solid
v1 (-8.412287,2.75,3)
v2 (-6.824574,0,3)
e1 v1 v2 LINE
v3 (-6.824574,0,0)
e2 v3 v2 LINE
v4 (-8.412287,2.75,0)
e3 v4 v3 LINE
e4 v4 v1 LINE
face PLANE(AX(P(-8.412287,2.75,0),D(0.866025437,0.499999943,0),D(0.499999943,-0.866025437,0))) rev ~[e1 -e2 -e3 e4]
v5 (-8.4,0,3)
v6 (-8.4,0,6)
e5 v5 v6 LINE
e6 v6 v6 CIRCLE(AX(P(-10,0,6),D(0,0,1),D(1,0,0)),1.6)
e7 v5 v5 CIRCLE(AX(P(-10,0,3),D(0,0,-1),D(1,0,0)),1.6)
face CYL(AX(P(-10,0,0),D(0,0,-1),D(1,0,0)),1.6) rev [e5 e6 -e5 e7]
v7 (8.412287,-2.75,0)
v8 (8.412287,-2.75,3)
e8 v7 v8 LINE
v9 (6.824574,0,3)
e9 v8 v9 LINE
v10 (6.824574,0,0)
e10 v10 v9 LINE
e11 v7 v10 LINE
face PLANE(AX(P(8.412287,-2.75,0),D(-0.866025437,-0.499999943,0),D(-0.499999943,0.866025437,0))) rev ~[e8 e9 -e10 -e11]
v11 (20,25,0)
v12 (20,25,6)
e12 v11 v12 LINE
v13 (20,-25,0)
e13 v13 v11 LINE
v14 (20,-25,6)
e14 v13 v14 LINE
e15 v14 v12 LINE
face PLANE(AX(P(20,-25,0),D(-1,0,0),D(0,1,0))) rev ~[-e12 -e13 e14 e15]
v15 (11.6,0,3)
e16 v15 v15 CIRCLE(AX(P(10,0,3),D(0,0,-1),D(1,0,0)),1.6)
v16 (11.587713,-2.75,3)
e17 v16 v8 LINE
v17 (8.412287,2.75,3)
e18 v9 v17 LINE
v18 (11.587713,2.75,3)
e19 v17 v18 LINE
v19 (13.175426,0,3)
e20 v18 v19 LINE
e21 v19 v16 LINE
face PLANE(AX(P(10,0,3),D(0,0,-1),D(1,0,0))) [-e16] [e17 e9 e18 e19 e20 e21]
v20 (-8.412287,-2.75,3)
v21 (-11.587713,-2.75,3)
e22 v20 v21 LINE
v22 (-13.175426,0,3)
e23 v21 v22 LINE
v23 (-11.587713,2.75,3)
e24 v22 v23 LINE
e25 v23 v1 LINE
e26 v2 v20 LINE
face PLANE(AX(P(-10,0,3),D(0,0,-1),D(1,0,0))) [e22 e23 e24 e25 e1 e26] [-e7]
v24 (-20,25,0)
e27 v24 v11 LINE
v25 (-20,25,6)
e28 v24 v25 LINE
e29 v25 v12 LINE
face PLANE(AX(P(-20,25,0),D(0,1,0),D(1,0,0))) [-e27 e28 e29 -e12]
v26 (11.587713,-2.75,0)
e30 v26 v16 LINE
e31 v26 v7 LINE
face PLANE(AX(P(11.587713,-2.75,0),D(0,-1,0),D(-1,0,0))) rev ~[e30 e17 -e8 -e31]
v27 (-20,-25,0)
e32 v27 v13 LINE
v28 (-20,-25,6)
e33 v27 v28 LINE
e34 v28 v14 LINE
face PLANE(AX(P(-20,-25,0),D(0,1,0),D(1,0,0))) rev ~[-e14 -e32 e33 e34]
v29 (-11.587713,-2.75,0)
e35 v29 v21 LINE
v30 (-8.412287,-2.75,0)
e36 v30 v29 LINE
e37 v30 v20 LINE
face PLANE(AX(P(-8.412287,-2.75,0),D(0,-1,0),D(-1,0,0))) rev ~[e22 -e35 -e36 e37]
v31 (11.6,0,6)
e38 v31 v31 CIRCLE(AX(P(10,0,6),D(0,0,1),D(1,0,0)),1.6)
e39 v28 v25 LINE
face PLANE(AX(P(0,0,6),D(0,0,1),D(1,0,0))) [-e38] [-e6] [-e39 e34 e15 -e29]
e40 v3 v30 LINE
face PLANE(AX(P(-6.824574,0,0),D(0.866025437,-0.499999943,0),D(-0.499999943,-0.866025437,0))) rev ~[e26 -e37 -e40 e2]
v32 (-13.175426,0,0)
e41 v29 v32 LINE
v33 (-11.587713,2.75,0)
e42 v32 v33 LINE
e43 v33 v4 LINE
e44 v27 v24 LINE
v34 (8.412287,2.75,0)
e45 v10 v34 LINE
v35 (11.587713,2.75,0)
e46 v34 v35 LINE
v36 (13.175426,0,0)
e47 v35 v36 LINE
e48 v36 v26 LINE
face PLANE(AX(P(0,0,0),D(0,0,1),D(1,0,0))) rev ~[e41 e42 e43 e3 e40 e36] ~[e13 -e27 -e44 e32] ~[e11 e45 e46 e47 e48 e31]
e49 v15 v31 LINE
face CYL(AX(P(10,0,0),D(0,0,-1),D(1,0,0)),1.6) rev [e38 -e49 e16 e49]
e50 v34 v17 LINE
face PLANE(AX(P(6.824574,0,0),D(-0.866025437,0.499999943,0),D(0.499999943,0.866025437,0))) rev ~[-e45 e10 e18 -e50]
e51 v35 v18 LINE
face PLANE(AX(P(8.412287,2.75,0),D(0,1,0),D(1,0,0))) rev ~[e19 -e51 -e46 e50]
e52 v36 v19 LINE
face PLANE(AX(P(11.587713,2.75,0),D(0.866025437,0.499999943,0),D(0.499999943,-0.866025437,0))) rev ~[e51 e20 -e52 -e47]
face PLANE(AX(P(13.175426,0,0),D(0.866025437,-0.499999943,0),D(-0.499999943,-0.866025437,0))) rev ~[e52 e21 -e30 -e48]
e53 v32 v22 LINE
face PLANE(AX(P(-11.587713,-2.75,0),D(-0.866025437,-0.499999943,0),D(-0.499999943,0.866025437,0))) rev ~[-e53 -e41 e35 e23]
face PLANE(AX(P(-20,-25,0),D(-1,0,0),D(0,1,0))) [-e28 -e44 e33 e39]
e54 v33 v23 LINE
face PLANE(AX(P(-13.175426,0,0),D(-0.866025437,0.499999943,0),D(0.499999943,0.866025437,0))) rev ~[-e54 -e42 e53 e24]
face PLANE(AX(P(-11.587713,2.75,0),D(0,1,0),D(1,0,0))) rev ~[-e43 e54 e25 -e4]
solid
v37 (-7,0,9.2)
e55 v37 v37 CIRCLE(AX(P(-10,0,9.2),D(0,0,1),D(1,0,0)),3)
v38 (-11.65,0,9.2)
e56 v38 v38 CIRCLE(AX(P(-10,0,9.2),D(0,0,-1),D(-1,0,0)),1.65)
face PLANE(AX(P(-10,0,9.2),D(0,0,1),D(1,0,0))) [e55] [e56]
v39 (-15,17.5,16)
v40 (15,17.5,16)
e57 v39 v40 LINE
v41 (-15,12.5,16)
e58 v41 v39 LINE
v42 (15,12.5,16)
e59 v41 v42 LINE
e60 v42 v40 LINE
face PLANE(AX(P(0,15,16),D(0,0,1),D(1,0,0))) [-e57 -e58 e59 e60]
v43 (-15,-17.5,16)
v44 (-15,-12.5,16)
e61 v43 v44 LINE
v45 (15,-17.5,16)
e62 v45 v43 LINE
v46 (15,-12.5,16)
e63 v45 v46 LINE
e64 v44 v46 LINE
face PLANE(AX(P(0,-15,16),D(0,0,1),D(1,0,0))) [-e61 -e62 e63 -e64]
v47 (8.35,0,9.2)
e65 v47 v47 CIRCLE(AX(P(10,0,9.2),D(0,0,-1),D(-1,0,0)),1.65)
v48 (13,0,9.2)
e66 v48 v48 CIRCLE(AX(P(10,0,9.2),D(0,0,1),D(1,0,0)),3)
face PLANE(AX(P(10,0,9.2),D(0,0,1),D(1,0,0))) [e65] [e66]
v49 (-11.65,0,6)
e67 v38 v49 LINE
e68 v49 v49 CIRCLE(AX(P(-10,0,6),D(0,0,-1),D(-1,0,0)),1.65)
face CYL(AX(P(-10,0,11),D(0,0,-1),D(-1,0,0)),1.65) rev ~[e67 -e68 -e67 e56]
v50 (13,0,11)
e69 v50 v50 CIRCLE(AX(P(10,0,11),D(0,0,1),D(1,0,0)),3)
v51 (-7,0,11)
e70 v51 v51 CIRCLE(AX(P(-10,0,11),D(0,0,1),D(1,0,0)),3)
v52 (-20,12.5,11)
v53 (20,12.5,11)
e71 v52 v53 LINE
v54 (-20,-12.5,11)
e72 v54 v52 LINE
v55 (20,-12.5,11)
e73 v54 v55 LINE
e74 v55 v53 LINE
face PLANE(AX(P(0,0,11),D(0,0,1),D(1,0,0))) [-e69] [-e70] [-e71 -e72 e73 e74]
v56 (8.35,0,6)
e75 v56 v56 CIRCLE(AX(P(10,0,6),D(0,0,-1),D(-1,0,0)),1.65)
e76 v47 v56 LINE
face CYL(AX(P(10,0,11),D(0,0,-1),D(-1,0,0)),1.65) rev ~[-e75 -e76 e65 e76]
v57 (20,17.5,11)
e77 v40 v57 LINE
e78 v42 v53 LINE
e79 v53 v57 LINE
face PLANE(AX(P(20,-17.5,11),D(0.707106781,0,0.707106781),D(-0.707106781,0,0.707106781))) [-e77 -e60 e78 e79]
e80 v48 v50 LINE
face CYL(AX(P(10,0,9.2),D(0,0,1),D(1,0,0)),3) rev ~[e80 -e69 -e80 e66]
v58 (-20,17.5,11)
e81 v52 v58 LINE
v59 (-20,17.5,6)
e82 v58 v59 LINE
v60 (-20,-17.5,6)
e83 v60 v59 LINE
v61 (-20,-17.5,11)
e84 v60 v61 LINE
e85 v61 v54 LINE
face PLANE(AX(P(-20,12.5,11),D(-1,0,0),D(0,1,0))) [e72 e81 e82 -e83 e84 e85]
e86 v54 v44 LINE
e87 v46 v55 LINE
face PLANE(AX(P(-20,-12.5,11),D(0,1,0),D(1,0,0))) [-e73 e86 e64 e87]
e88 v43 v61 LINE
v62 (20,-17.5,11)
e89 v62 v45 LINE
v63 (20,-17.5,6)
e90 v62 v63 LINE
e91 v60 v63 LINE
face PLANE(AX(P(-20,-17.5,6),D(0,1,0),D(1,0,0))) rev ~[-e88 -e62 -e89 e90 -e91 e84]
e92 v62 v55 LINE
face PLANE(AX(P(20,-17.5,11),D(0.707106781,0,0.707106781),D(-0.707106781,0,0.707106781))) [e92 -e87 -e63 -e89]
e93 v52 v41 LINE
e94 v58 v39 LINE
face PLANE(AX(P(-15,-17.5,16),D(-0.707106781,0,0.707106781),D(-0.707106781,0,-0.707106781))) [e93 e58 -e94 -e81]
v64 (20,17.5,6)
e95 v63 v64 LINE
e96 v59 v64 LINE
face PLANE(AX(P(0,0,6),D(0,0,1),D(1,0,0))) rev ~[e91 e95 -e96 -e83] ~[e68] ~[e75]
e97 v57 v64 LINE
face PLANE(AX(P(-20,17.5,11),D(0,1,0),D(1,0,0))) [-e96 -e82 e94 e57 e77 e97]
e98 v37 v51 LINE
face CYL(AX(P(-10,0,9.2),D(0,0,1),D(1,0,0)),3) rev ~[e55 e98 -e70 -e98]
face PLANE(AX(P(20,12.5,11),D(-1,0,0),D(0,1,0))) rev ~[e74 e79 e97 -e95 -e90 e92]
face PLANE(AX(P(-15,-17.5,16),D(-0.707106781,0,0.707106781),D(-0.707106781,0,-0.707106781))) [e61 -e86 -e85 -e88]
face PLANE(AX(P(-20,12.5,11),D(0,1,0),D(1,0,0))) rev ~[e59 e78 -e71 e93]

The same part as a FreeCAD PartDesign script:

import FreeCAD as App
import Part
import Sketcher
from FreeCAD import Vector
Q = App.Units.Quantity


def add_polygon(sketch, points):
    """Adds a closed chain of lines whose ends are joined by coincident constraints."""
    first, n = sketch.GeometryCount, len(points)
    for a, b in zip(points, points[1:] + points[:1]):
        sketch.addGeometry(Part.LineSegment(App.Vector(*a, 0), App.Vector(*b, 0)), False)
    for i in range(n):
        sketch.addConstraint(Sketcher.Constraint("Coincident", first + i, 2, first + (i + 1) % n, 1))

doc = App.newDocument("Part")
body = doc.addObject("PartDesign::Body", "Body")

# Sketch on XY plane
sketch1 = doc.addObject("Sketcher::SketchObject", "Sketch")
body.addObject(sketch1)
sketch1.AttachmentSupport = (doc.XY_Plane, [""])
sketch1.MapMode = "FlatFace"
add_polygon(sketch1, [(-20, 25), (-20, -25), (20, -25), (20, 25)])  # lines 0-3
sketch1.addGeometry(Part.Circle(Vector(-10, 0, 0), Vector(0, 0, 1), 1.6), False)  # 4
sketch1.addGeometry(Part.Circle(Vector(10, 0, 0), Vector(0, 0, 1), 1.6), False)  # 5
sketch1.addConstraint(Sketcher.Constraint("Vertical", 0))
sketch1.addConstraint(Sketcher.Constraint("Horizontal", 1))
sketch1.addConstraint(Sketcher.Constraint("Vertical", 2))
sketch1.addConstraint(Sketcher.Constraint("Horizontal", 3))
sketch1.addConstraint(Sketcher.Constraint("Equal", 4, 5))
sketch1.addConstraint(Sketcher.Constraint("Symmetric", 4, 3, 5, 3, -1, 1))
sketch1.addConstraint(Sketcher.Constraint("Symmetric", 0, 2, 2, 2, -1, 1))
sketch1.addConstraint(Sketcher.Constraint("PointOnObject", 4, 3, -1))
sketch1.addConstraint(Sketcher.Constraint("Diameter", 4, 3.2))
sketch1.addConstraint(Sketcher.Constraint("DistanceX", 1, 1, 1, 2, 40.0))
sketch1.addConstraint(Sketcher.Constraint("DistanceY", 0, 2, 0, 1, 50.0))
sketch1.addConstraint(Sketcher.Constraint("DistanceX", 4, 3, -1, 1, 10.0))
pad1 = doc.addObject("PartDesign::Pad", "Pad")
body.addObject(pad1)
pad1.Profile = sketch1
pad1.Length = 6

# Sketch on XY plane
sketch2 = doc.addObject("Sketcher::SketchObject", "Sketch001")
body.addObject(sketch2)
sketch2.AttachmentSupport = (doc.XY_Plane, [""])
sketch2.MapMode = "FlatFace"
add_polygon(sketch2, [(-8.4, 2.8), (-6.8, 0), (-8.4, -2.8), (-11.6, -2.8), (-13.2, 0), (-11.6, 2.8)])  # lines 0-5
add_polygon(sketch2, [(11.6, 2.8), (13.2, 0), (11.6, -2.8), (8.4, -2.8), (6.8, 0), (8.4, 2.8)])  # lines 6-11
sketch2.addConstraint(Sketcher.Constraint("Horizontal", 2))
sketch2.addConstraint(Sketcher.Constraint("Horizontal", 5))
sketch2.addConstraint(Sketcher.Constraint("Horizontal", 8))
sketch2.addConstraint(Sketcher.Constraint("Horizontal", 11))
sketch2.addConstraint(Sketcher.Constraint("Symmetric", 3, 2, 6, 2, -1, 1))
sketch2.addConstraint(Sketcher.Constraint("Symmetric", 4, 2, 7, 2, -1, 1))
sketch2.addConstraint(Sketcher.Constraint("Symmetric", 0, 2, 9, 2, -1, 1))
sketch2.addConstraint(Sketcher.Constraint("Symmetric", 1, 2, 10, 2, -1, 1))
sketch2.addConstraint(Sketcher.Constraint("Symmetric", 2, 2, 7, 2, -2))
sketch2.addConstraint(Sketcher.Constraint("PointOnObject", 0, 2, -1))
sketch2.addConstraint(Sketcher.Constraint("PointOnObject", 3, 2, -1))
sketch2.addConstraint(Sketcher.Constraint("Parallel", 0, 3))
sketch2.addConstraint(Sketcher.Constraint("Parallel", 1, 4))
sketch2.addConstraint(Sketcher.Constraint("Parallel", 3, 6))
sketch2.addConstraint(Sketcher.Constraint("Parallel", 6, 9))
sketch2.addConstraint(Sketcher.Constraint("Angle", 0, Q("-60.000004 deg")))
sketch2.addConstraint(Sketcher.Constraint("DistanceX", 0, 2, 6, 2, 20.0))
sketch2.addConstraint(Sketcher.Constraint("DistanceY", 2, 2, 4, 2, 5.5))
sketch2.addConstraint(Sketcher.Constraint("DistanceX", 2, 2, 2, 1, 3.175426))
pocket1 = doc.addObject("PartDesign::Pocket", "Pocket")
body.addObject(pocket1)
pocket1.Profile = sketch2
pocket1.Length = 3
pocket1.Reversed = True
body2 = doc.addObject("PartDesign::Body", "Body001")

# Sketch on XY plane
sketch3 = doc.addObject("Sketcher::SketchObject", "Sketch002")
body2.addObject(sketch3)
sketch3.AttachmentSupport = (doc.getObject("XY_Plane001"), [""])
sketch3.MapMode = "FlatFace"
sketch3.AttachmentOffset = App.Placement(Vector(0, 0, 6), App.Rotation())
add_polygon(sketch3, [(-20, 18), (-20, -18), (20, -18), (20, 18)])  # lines 0-3
sketch3.addConstraint(Sketcher.Constraint("Vertical", 0))
sketch3.addConstraint(Sketcher.Constraint("Horizontal", 1))
sketch3.addConstraint(Sketcher.Constraint("Vertical", 2))
sketch3.addConstraint(Sketcher.Constraint("Horizontal", 3))
sketch3.addConstraint(Sketcher.Constraint("Symmetric", 0, 2, 2, 2, -1, 1))
sketch3.addConstraint(Sketcher.Constraint("DistanceX", 1, 1, 1, 2, 40.0))
sketch3.addConstraint(Sketcher.Constraint("DistanceY", 0, 2, 0, 1, 35.0))
pad2 = doc.addObject("PartDesign::Pad", "Pad001")
body2.addObject(pad2)
pad2.Profile = sketch3
pad2.Length = 5

# Sketch on XY plane
sketch4 = doc.addObject("Sketcher::SketchObject", "Sketch003")
body2.addObject(sketch4)
sketch4.AttachmentSupport = (doc.getObject("XY_Plane001"), [""])
sketch4.MapMode = "FlatFace"
sketch4.AttachmentOffset = App.Placement(Vector(0, 0, 11), App.Rotation())
add_polygon(sketch4, [(-20, 18), (-20, 12), (20, 12), (20, 18)])  # lines 0-3
add_polygon(sketch4, [(-20, -12), (-20, -18), (20, -18), (20, -12)])  # lines 4-7
sketch4.addConstraint(Sketcher.Constraint("Vertical", 0))
sketch4.addConstraint(Sketcher.Constraint("Horizontal", 1))
sketch4.addConstraint(Sketcher.Constraint("Vertical", 2))
sketch4.addConstraint(Sketcher.Constraint("Horizontal", 3))
sketch4.addConstraint(Sketcher.Constraint("Vertical", 4))
sketch4.addConstraint(Sketcher.Constraint("Horizontal", 5))
sketch4.addConstraint(Sketcher.Constraint("Vertical", 6))
sketch4.addConstraint(Sketcher.Constraint("Horizontal", 7))
sketch4.addConstraint(Sketcher.Constraint("Symmetric", 2, 2, 4, 2, -1, 1))
sketch4.addConstraint(Sketcher.Constraint("Symmetric", 0, 2, 6, 2, -1, 1))
sketch4.addConstraint(Sketcher.Constraint("Vertical", 3, 2, 4, 2))
sketch4.addConstraint(Sketcher.Constraint("DistanceX", 1, 1, 1, 2, 40.0))
sketch4.addConstraint(Sketcher.Constraint("DistanceY", 0, 2, 0, 1, 5.0))
sketch4.addConstraint(Sketcher.Constraint("DistanceY", 4, 2, 0, 2, 30.0))
pad3 = doc.addObject("PartDesign::Pad", "Pad002")
body2.addObject(pad3)
pad3.Profile = sketch4
pad3.Length = 5

# Sketch on XY plane
sketch5 = doc.addObject("Sketcher::SketchObject", "Sketch004")
body2.addObject(sketch5)
sketch5.AttachmentSupport = (doc.getObject("XY_Plane001"), [""])
sketch5.MapMode = "FlatFace"
sketch5.AttachmentOffset = App.Placement(Vector(0, 0, 11), App.Rotation())
sketch5.addGeometry(Part.Circle(Vector(-10, 0, 0), Vector(0, 0, 1), 1.6), False)
sketch5.addGeometry(Part.Circle(Vector(10, 0, 0), Vector(0, 0, 1), 1.6), False)
sketch5.addConstraint(Sketcher.Constraint("Equal", 0, 1))
sketch5.addConstraint(Sketcher.Constraint("Symmetric", 0, 3, 1, 3, -1, 1))
sketch5.addConstraint(Sketcher.Constraint("PointOnObject", 0, 3, -1))
sketch5.addConstraint(Sketcher.Constraint("Diameter", 0, 3.3))
sketch5.addConstraint(Sketcher.Constraint("DistanceX", 0, 3, -1, 1, 10.0))
doc.recompute()
hole = doc.addObject("PartDesign::Hole", "Hole")
body2.addObject(hole)
hole.Profile = sketch5
hole.ThreadType = "None"
hole.Diameter = 3.3
hole.DepthType = "Dimension"
hole.Depth = 25
hole.DrillPoint = "Flat"
hole.HoleCutType = "Counterbore"
hole.HoleCutDiameter = 6
hole.HoleCutDepth = 1.8

# Sketch on XZ plane
sketch6 = doc.addObject("Sketcher::SketchObject", "Sketch005")
body2.addObject(sketch6)
sketch6.AttachmentSupport = (doc.getObject("XZ_Plane001"), [""])
sketch6.MapMode = "FlatFace"
sketch6.AttachmentOffset = App.Placement(Vector(0, 0, 17.5), App.Rotation())
add_polygon(sketch6, [(20, 21), (-20, 21), (-20, 11), (-15, 16), (15, 16), (20, 11)])  # lines 0-5
sketch6.addConstraint(Sketcher.Constraint("Horizontal", 0))
sketch6.addConstraint(Sketcher.Constraint("Vertical", 1))
sketch6.addConstraint(Sketcher.Constraint("Horizontal", 3))
sketch6.addConstraint(Sketcher.Constraint("Vertical", 5))
sketch6.addConstraint(Sketcher.Constraint("Symmetric", 1, 2, 4, 2, -2))
sketch6.addConstraint(Sketcher.Constraint("Perpendicular", 2, 4))
sketch6.addConstraint(Sketcher.Constraint("Equal", 2, 4))
sketch6.addConstraint(Sketcher.Constraint("DistanceX", 0, 2, 0, 1, 40.0))
sketch6.addConstraint(Sketcher.Constraint("DistanceX", 3, 1, 3, 2, 30.0))
sketch6.addConstraint(Sketcher.Constraint("DistanceY", -1, 1, 1, 2, 11.0))
sketch6.addConstraint(Sketcher.Constraint("DistanceY", 1, 2, 1, 1, 9.556483))
pocket2 = doc.addObject("PartDesign::Pocket", "Pocket001")
body2.addObject(pocket2)
pocket2.Profile = sketch6
pocket2.Type = "ThroughAll"

doc.recompute()
